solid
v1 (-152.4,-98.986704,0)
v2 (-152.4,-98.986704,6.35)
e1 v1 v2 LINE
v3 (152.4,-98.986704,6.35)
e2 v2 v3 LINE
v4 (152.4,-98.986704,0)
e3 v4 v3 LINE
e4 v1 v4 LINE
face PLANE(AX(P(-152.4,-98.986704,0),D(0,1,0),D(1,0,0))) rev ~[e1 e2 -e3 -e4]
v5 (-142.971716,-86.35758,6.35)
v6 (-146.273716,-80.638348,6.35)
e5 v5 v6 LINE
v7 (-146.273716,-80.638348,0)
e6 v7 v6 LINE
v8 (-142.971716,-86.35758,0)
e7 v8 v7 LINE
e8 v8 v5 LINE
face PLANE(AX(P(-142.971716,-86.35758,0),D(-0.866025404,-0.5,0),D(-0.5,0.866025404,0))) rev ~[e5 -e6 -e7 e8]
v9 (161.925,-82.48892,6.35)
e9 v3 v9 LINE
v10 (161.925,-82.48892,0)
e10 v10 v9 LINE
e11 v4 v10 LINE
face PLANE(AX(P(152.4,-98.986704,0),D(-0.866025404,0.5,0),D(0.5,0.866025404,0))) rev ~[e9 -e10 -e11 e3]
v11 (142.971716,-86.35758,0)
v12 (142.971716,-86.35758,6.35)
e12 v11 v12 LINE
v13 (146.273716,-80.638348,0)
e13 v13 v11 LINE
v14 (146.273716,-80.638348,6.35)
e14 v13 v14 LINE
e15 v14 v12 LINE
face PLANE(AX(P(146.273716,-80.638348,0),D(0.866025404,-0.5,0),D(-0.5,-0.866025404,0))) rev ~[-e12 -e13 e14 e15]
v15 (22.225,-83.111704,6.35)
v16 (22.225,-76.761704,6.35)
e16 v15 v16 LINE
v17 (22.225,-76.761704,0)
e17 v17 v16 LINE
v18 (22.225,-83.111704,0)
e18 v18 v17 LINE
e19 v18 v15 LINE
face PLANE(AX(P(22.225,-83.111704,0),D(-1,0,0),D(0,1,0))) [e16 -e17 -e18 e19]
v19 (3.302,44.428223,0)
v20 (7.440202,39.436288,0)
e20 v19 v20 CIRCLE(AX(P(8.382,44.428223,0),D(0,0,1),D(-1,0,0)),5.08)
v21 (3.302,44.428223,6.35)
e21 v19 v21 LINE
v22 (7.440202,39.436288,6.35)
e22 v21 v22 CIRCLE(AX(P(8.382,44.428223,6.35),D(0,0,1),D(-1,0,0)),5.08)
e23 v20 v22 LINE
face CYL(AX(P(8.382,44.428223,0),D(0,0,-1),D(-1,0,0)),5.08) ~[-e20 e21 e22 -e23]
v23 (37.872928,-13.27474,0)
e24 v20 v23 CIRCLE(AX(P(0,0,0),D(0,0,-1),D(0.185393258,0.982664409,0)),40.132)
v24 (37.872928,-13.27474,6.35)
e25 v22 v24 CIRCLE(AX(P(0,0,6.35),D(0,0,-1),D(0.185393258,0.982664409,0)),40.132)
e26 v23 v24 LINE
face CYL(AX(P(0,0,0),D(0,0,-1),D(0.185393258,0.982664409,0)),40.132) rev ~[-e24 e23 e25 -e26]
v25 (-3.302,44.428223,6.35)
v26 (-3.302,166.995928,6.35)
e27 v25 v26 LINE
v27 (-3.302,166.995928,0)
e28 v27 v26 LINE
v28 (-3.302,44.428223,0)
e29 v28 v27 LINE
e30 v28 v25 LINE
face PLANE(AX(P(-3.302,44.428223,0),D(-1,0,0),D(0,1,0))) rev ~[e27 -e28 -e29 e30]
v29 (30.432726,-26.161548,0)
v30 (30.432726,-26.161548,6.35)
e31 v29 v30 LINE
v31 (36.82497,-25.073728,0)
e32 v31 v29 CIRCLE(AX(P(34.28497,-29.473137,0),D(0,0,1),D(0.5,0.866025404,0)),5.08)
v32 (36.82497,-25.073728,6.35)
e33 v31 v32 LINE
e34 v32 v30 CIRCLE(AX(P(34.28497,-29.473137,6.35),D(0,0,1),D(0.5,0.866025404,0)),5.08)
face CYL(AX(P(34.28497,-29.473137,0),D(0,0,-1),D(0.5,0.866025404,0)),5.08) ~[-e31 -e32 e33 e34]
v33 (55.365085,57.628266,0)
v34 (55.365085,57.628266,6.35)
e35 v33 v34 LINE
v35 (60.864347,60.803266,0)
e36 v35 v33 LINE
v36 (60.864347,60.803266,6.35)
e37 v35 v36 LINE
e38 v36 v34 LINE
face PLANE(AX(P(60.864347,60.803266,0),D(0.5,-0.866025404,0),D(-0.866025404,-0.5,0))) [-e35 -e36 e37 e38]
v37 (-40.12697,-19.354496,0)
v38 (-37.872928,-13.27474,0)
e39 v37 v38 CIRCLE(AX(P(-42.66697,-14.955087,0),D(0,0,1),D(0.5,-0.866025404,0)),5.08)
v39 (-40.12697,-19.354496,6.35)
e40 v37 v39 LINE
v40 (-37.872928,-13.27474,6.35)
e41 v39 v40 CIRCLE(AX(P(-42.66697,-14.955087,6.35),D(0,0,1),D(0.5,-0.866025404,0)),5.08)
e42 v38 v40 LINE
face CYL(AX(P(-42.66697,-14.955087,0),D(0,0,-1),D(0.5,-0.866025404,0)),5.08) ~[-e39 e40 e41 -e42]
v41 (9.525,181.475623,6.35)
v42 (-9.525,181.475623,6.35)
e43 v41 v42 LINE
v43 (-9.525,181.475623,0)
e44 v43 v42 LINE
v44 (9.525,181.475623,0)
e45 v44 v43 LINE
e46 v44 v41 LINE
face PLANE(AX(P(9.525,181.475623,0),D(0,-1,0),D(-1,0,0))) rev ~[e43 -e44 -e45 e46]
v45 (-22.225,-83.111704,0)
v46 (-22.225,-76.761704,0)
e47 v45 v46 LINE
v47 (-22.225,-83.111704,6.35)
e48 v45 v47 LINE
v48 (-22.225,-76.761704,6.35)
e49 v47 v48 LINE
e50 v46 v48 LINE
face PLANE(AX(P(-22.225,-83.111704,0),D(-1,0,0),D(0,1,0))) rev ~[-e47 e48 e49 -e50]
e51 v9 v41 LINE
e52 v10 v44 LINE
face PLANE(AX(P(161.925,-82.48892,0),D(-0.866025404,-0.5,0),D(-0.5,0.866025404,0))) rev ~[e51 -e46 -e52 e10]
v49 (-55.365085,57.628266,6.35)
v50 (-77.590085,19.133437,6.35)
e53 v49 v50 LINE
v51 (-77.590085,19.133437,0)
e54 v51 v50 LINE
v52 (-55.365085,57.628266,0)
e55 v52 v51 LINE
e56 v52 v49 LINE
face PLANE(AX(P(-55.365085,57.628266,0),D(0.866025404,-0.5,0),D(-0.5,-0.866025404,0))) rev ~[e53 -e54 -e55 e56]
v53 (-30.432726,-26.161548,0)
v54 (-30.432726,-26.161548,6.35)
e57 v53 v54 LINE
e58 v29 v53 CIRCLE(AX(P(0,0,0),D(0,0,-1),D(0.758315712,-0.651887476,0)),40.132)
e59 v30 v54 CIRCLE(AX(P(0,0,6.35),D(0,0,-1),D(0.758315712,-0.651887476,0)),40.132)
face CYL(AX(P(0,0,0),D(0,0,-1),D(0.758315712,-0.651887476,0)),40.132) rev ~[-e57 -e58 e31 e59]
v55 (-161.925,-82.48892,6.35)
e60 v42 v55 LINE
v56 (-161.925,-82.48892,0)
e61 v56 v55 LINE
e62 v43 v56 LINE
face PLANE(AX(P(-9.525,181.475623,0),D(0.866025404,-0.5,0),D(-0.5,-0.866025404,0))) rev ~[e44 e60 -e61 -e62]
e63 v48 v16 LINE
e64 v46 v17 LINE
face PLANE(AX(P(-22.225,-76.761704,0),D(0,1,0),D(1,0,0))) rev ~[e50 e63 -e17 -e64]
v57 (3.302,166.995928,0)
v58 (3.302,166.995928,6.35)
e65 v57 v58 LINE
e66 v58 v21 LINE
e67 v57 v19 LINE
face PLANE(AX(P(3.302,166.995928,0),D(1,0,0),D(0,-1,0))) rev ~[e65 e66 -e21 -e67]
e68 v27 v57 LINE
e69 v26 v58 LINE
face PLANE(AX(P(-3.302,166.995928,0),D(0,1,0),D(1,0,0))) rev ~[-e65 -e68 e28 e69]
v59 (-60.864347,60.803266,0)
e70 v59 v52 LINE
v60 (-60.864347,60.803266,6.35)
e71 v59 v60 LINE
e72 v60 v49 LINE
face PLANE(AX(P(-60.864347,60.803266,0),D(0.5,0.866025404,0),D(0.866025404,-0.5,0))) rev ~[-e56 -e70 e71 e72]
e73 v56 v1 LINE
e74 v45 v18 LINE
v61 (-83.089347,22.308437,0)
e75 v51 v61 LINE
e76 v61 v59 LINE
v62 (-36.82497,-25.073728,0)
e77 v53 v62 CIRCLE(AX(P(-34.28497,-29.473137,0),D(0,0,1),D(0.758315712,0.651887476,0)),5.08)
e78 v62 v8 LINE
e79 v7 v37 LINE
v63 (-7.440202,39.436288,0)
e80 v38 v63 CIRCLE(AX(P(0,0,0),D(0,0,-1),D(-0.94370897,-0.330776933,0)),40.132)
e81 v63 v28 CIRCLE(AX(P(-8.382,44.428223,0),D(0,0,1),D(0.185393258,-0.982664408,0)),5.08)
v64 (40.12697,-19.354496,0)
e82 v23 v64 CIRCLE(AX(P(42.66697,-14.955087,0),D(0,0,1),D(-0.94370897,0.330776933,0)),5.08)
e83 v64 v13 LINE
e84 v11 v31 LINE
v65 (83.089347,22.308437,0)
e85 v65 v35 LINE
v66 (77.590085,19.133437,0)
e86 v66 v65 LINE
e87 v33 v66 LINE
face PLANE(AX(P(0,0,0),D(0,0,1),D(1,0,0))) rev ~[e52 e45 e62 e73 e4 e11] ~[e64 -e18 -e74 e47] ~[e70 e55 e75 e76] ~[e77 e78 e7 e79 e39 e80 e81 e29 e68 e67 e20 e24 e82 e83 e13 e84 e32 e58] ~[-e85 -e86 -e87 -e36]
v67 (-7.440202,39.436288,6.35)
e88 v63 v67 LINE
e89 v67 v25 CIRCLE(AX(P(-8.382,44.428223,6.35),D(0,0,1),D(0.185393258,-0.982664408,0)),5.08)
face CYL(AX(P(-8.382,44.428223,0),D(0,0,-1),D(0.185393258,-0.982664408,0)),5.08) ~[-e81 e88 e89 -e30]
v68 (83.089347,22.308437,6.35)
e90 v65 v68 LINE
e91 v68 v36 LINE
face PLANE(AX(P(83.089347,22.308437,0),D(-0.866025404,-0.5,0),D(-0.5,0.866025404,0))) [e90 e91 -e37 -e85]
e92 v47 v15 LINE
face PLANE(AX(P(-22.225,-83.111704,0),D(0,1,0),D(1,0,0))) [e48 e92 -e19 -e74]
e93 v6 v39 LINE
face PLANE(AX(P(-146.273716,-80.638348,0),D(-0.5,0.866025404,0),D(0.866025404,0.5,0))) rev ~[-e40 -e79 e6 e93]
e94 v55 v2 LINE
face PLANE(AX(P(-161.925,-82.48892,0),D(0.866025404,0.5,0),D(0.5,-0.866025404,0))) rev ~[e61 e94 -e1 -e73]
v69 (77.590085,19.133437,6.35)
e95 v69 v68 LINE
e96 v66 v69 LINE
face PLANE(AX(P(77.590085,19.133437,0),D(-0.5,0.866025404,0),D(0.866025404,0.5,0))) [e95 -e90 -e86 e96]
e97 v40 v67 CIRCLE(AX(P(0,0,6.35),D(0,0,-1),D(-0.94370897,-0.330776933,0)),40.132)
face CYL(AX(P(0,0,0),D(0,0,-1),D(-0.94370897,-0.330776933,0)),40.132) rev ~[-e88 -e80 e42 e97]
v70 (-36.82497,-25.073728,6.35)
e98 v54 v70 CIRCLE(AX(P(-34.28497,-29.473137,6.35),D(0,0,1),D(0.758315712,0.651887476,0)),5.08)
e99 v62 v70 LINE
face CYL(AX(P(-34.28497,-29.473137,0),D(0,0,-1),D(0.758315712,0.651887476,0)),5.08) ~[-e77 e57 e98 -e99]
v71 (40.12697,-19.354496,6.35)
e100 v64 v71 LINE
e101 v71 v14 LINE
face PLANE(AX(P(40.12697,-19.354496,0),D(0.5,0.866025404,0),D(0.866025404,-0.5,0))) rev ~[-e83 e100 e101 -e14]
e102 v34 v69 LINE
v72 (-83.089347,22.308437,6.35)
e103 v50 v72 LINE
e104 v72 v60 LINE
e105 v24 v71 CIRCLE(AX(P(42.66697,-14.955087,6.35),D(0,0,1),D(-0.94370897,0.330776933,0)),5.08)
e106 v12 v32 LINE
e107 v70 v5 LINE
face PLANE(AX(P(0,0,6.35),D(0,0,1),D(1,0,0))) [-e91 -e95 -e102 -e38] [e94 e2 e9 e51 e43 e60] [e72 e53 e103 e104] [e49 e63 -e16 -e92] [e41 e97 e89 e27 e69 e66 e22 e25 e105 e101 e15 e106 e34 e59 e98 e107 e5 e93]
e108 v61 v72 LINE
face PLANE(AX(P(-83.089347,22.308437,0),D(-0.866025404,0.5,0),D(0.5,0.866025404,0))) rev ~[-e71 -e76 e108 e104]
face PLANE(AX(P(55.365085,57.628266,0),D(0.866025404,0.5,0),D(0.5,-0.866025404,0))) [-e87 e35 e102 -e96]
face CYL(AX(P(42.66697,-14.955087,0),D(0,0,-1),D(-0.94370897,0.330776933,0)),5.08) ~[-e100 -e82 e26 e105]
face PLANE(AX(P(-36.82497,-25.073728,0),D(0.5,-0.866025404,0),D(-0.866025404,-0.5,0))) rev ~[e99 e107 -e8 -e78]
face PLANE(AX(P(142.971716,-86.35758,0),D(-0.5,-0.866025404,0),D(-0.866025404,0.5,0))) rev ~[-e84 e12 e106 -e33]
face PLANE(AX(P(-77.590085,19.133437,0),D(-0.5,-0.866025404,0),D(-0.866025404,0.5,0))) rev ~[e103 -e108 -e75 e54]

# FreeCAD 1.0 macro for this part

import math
import FreeCAD as App
import Part
import Sketcher

V = App.Vector
Q = App.Units.Quantity

doc = App.newDocument("Part")
body = doc.addObject("PartDesign::Body", "Body")

# Sketch on XY plane
sketch1 = body.newObject("Sketcher::SketchObject", "Sketch")
sketch1.AttachmentSupport = (doc.getObject("XY_Plane"), [""])
sketch1.MapMode = "FlatFace"
sketch1.addGeometry(Part.LineSegment(V(152.4, -98.986704, 0), V(161.925, -82.48892, 0)), False)
sketch1.addGeometry(Part.LineSegment(V(161.925, -82.48892, 0), V(9.525, 181.475623, 0)), False)
sketch1.addGeometry(Part.LineSegment(V(9.525, 181.475623, 0), V(-9.525, 181.475623, 0)), False)
sketch1.addGeometry(Part.LineSegment(V(-9.525, 181.475623, 0), V(-161.925, -82.48892, 0)), False)
sketch1.addGeometry(Part.LineSegment(V(-161.925, -82.48892, 0), V(-152.4, -98.986704, 0)), False)
sketch1.addGeometry(Part.LineSegment(V(-152.4, -98.986704, 0), V(152.4, -98.986704, 0)), False)
sketch1.addGeometry(Part.LineSegment(V(-77.590085, 19.133437, 0), V(-83.089347, 22.308437, 0)), False)
sketch1.addGeometry(Part.LineSegment(V(-83.089347, 22.308437, 0), V(-60.864347, 60.803266, 0)), False)
sketch1.addGeometry(Part.LineSegment(V(-60.864347, 60.803266, 0), V(-55.365085, 57.628266, 0)), False)
sketch1.addGeometry(Part.LineSegment(V(-55.365085, 57.628266, 0), V(-77.590085, 19.133437, 0)), False)
sketch1.addGeometry(Part.LineSegment(V(22.225, -83.111704, 0), V(-22.225, -83.111704, 0)), False)
sketch1.addGeometry(Part.LineSegment(V(-22.225, -83.111704, 0), V(-22.225, -76.761704, 0)), False)
sketch1.addGeometry(Part.LineSegment(V(-22.225, -76.761704, 0), V(22.225, -76.761704, 0)), False)
sketch1.addGeometry(Part.LineSegment(V(22.225, -76.761704, 0), V(22.225, -83.111704, 0)), False)
sketch1.addGeometry(Part.LineSegment(V(55.365085, 57.628266, 0), V(60.864347, 60.803266, 0)), False)
sketch1.addGeometry(Part.LineSegment(V(60.864347, 60.803266, 0), V(83.089347, 22.308437, 0)), False)
sketch1.addGeometry(Part.LineSegment(V(83.089347, 22.308437, 0), V(77.590085, 19.133437, 0)), False)
sketch1.addGeometry(Part.LineSegment(V(77.590085, 19.133437, 0), V(55.365085, 57.628266, 0)), False)
sketch1.addGeometry(Part.LineSegment(V(-3.302, 44.428223, 0), V(-3.302, 166.995928, 0)), False)
sketch1.addGeometry(Part.LineSegment(V(-3.302, 166.995928, 0), V(3.302, 166.995928, 0)), False)
sketch1.addGeometry(Part.LineSegment(V(3.302, 166.995928, 0), V(3.302, 44.428223, 0)), False)
sketch1.addGeometry(Part.ArcOfCircle(Part.Circle(V(8.382, 44.428223, 0), V(0, 0, 1), 5.08), math.radians(180), math.radians(259.315939)), False)
sketch1.addGeometry(Part.ArcOfCircle(Part.Circle(V(0, 0, 0), V(0, 0, 1), 40.132), math.radians(-19.315939), math.radians(79.315939)), False)
sketch1.addGeometry(Part.ArcOfCircle(Part.Circle(V(42.66697, -14.955087, 0), V(0, 0, 1), 5.08), math.radians(160.684061), math.radians(240)), False)
sketch1.addGeometry(Part.LineSegment(V(40.12697, -19.354496, 0), V(146.273716, -80.638348, 0)), False)
sketch1.addGeometry(Part.LineSegment(V(146.273716, -80.638348, 0), V(142.971716, -86.35758, 0)), False)
sketch1.addGeometry(Part.LineSegment(V(142.971716, -86.35758, 0), V(36.82497, -25.073728, 0)), False)
sketch1.addGeometry(Part.ArcOfCircle(Part.Circle(V(34.28497, -29.473137, 0), V(0, 0, 1), 5.08), math.radians(60), math.radians(139.315939)), False)
sketch1.addGeometry(Part.ArcOfCircle(Part.Circle(V(0, 0, 0), V(0, 0, 1), 40.132), math.radians(-139.315939), math.radians(-40.684061)), False)
sketch1.addGeometry(Part.ArcOfCircle(Part.Circle(V(-34.28497, -29.473137, 0), V(0, 0, 1), 5.08), math.radians(40.684061), math.radians(120)), False)
sketch1.addGeometry(Part.LineSegment(V(-36.82497, -25.073728, 0), V(-142.971716, -86.35758, 0)), False)
sketch1.addGeometry(Part.LineSegment(V(-142.971716, -86.35758, 0), V(-146.273716, -80.638348, 0)), False)
sketch1.addGeometry(Part.LineSegment(V(-146.273716, -80.638348, 0), V(-40.12697, -19.354496, 0)), False)
sketch1.addGeometry(Part.ArcOfCircle(Part.Circle(V(-42.66697, -14.955087, 0), V(0, 0, 1), 5.08), math.radians(-60), math.radians(19.315939)), False)
sketch1.addGeometry(Part.ArcOfCircle(Part.Circle(V(0, 0, 0), V(0, 0, 1), 40.132), math.radians(100.684061), math.radians(199.315939)), False)
sketch1.addGeometry(Part.ArcOfCircle(Part.Circle(V(-8.382, 44.428223, 0), V(0, 0, 1), 5.08), math.radians(-79.315939), math.radians(0)), False)
sketch1.addConstraint(Sketcher.Constraint("Coincident", 0, 2, 1, 1))
sketch1.addConstraint(Sketcher.Constraint("Coincident", 1, 2, 2, 1))
sketch1.addConstraint(Sketcher.Constraint("Coincident", 2, 2, 3, 1))
sketch1.addConstraint(Sketcher.Constraint("Coincident", 3, 2, 4, 1))
sketch1.addConstraint(Sketcher.Constraint("Coincident", 4, 2, 5, 1))
sketch1.addConstraint(Sketcher.Constraint("Coincident", 5, 2, 0, 1))
sketch1.addConstraint(Sketcher.Constraint("Coincident", 6, 2, 7, 1))
sketch1.addConstraint(Sketcher.Constraint("Coincident", 7, 2, 8, 1))
sketch1.addConstraint(Sketcher.Constraint("Coincident", 8, 2, 9, 1))
sketch1.addConstraint(Sketcher.Constraint("Coincident", 9, 2, 6, 1))
sketch1.addConstraint(Sketcher.Constraint("Coincident", 10, 2, 11, 1))
sketch1.addConstraint(Sketcher.Constraint("Coincident", 11, 2, 12, 1))
sketch1.addConstraint(Sketcher.Constraint("Coincident", 12, 2, 13, 1))
sketch1.addConstraint(Sketcher.Constraint("Coincident", 13, 2, 10, 1))
sketch1.addConstraint(Sketcher.Constraint("Coincident", 14, 2, 15, 1))
sketch1.addConstraint(Sketcher.Constraint("Coincident", 15, 2, 16, 1))
sketch1.addConstraint(Sketcher.Constraint("Coincident", 16, 2, 17, 1))
sketch1.addConstraint(Sketcher.Constraint("Coincident", 17, 2, 14, 1))
sketch1.addConstraint(Sketcher.Constraint("Coincident", 18, 2, 19, 1))
sketch1.addConstraint(Sketcher.Constraint("Coincident", 19, 2, 20, 1))
sketch1.addConstraint(Sketcher.Constraint("Tangent", 20, 2, 21, 1))
sketch1.addConstraint(Sketcher.Constraint("Tangent", 21, 2, 22, 2))
sketch1.addConstraint(Sketcher.Constraint("Tangent", 22, 1, 23, 1))
sketch1.addConstraint(Sketcher.Constraint("Tangent", 23, 2, 24, 1))
sketch1.addConstraint(Sketcher.Constraint("Coincident", 24, 2, 25, 1))
sketch1.addConstraint(Sketcher.Constraint("Coincident", 25, 2, 26, 1))
sketch1.addConstraint(Sketcher.Constraint("Tangent", 26, 2, 27, 1))
sketch1.addConstraint(Sketcher.Constraint("Tangent", 27, 2, 28, 2))
sketch1.addConstraint(Sketcher.Constraint("Tangent", 28, 1, 29, 1))
sketch1.addConstraint(Sketcher.Constraint("Tangent", 29, 2, 30, 1))
sketch1.addConstraint(Sketcher.Constraint("Coincident", 30, 2, 31, 1))
sketch1.addConstraint(Sketcher.Constraint("Coincident", 31, 2, 32, 1))
sketch1.addConstraint(Sketcher.Constraint("Tangent", 32, 2, 33, 1))
sketch1.addConstraint(Sketcher.Constraint("Tangent", 33, 2, 34, 2))
sketch1.addConstraint(Sketcher.Constraint("Tangent", 34, 1, 35, 1))
sketch1.addConstraint(Sketcher.Constraint("Tangent", 35, 2, 18, 1))
sketch1.addConstraint(Sketcher.Constraint("Horizontal", 2))
sketch1.addConstraint(Sketcher.Constraint("Horizontal", 5))
sketch1.addConstraint(Sketcher.Constraint("Horizontal", 10))
sketch1.addConstraint(Sketcher.Constraint("Vertical", 11))
sketch1.addConstraint(Sketcher.Constraint("Horizontal", 12))
sketch1.addConstraint(Sketcher.Constraint("Vertical", 13))
sketch1.addConstraint(Sketcher.Constraint("Vertical", 18))
sketch1.addConstraint(Sketcher.Constraint("Horizontal", 19))
sketch1.addConstraint(Sketcher.Constraint("Vertical", 20))
sketch1.addConstraint(Sketcher.Constraint("Coincident", 22, 3, -1, 1))
sketch1.addConstraint(Sketcher.Constraint("Coincident", 28, 3, -1, 1))
sketch1.addConstraint(Sketcher.Constraint("Coincident", 34, 3, -1, 1))
sketch1.addConstraint(Sketcher.Constraint("Equal", 21, 23))
sketch1.addConstraint(Sketcher.Constraint("Equal", 23, 27))
sketch1.addConstraint(Sketcher.Constraint("Equal", 22, 28))
sketch1.addConstraint(Sketcher.Constraint("Equal", 27, 29))
sketch1.addConstraint(Sketcher.Constraint("Equal", 29, 33))
sketch1.addConstraint(Sketcher.Constraint("Equal", 28, 34))
sketch1.addConstraint(Sketcher.Constraint("Equal", 33, 35))
sketch1.addConstraint(Sketcher.Constraint("Symmetric", 0, 2, 3, 2, -2))
sketch1.addConstraint(Sketcher.Constraint("Symmetric", 7, 2, 14, 2, -2))
sketch1.addConstraint(Sketcher.Constraint("Symmetric", 6, 2, 15, 2, -2))
sketch1.addConstraint(Sketcher.Constraint("Symmetric", 9, 2, 16, 2, -2))
sketch1.addConstraint(Sketcher.Constraint("Symmetric", 8, 2, 17, 2, -2))
sketch1.addConstraint(Sketcher.Constraint("Symmetric", 26, 2, 29, 2, -2))
sketch1.addConstraint(Sketcher.Constraint("Symmetric", 24, 2, 31, 2, -2))
sketch1.addConstraint(Sketcher.Constraint("Parallel", 0, 3))
sketch1.addConstraint(Sketcher.Constraint("Parallel", 1, 4))
sketch1.addConstraint(Sketcher.Constraint("Perpendicular", 3, 6))
sketch1.addConstraint(Sketcher.Constraint("Perpendicular", 6, 7))
sketch1.addConstraint(Sketcher.Constraint("Perpendicular", 7, 8))
sketch1.addConstraint(Sketcher.Constraint("Perpendicular", 8, 9))
sketch1.addConstraint(Sketcher.Constraint("Perpendicular", 4, 14))
sketch1.addConstraint(Sketcher.Constraint("Perpendicular", 9, 24))
sketch1.addConstraint(Sketcher.Constraint("Perpendicular", 24, 25))
sketch1.addConstraint(Sketcher.Constraint("Perpendicular", 25, 26))
sketch1.addConstraint(Sketcher.Constraint("Perpendicular", 30, 31))
sketch1.addConstraint(Sketcher.Constraint("Perpendicular", 31, 32))
sketch1.addConstraint(Sketcher.Constraint("Horizontal", 21, 3, 35, 3))
sketch1.addConstraint(Sketcher.Constraint("Equal", 24, 26))
sketch1.addConstraint(Sketcher.Constraint("Radius", 21, Q("0.2 in")))
sketch1.addConstraint(Sketcher.Constraint("DistanceX", 5, 1, 5, 2, Q("12 in")))
sketch1.addConstraint(Sketcher.Constraint("Radius", 22, Q("1.58 in")))
sketch1.addConstraint(Sketcher.Constraint("Distance", 1, Q("12 in")))
sketch1.addConstraint(Sketcher.Constraint("Angle", 0, Q("60 deg")))
sketch1.addConstraint(Sketcher.Constraint("DistanceX", 2, 2, 2, 1, Q("0.75 in")))
sketch1.addConstraint(Sketcher.Constraint("DistanceX", 10, 2, 10, 1, Q("1.75 in")))
sketch1.addConstraint(Sketcher.Constraint("DistanceX", 19, 1, 19, 2, Q("0.26 in")))
sketch1.addConstraint(Sketcher.Constraint("DistanceY", 11, 1, 11, 2, Q("0.25 in")))
sketch1.addConstraint(Sketcher.Constraint("Distance", 6, Q("0.25 in")))
sketch1.addConstraint(Sketcher.Constraint("Distance", 7, Q("1.75 in")))
sketch1.addConstraint(Sketcher.Constraint("Distance", 25, Q("0.26 in")))
sketch1.addConstraint(Sketcher.Constraint("DistanceY", 18, 1, 18, 2, Q("4.8255002 in")))
sketch1.addConstraint(Sketcher.Constraint("DistanceX", 10, 2, -1, 1, Q("0.875 in")))
sketch1.addConstraint(Sketcher.Constraint("Distance", 24, Q("4.8255002 in")))
sketch1.addConstraint(Sketcher.Constraint("DistanceY", 21, 3, 1, 2, Q("137.0474 mm")))
sketch1.addConstraint(Sketcher.Constraint("DistanceY", 7, 2, 18, 2, Q("106.192661 mm")))
sketch1.addConstraint(Sketcher.Constraint("DistanceX", 15, 2, 24, 2, Q("63.184369 mm")))
sketch1.addConstraint(Sketcher.Constraint("DistanceY", 10, 2, -1, 1, Q("83.111704 mm")))
pad1 = body.newObject("PartDesign::Pad", "Pad")
pad1.Profile = sketch1
pad1.Length = Q("0.25 in")

doc.recompute()
